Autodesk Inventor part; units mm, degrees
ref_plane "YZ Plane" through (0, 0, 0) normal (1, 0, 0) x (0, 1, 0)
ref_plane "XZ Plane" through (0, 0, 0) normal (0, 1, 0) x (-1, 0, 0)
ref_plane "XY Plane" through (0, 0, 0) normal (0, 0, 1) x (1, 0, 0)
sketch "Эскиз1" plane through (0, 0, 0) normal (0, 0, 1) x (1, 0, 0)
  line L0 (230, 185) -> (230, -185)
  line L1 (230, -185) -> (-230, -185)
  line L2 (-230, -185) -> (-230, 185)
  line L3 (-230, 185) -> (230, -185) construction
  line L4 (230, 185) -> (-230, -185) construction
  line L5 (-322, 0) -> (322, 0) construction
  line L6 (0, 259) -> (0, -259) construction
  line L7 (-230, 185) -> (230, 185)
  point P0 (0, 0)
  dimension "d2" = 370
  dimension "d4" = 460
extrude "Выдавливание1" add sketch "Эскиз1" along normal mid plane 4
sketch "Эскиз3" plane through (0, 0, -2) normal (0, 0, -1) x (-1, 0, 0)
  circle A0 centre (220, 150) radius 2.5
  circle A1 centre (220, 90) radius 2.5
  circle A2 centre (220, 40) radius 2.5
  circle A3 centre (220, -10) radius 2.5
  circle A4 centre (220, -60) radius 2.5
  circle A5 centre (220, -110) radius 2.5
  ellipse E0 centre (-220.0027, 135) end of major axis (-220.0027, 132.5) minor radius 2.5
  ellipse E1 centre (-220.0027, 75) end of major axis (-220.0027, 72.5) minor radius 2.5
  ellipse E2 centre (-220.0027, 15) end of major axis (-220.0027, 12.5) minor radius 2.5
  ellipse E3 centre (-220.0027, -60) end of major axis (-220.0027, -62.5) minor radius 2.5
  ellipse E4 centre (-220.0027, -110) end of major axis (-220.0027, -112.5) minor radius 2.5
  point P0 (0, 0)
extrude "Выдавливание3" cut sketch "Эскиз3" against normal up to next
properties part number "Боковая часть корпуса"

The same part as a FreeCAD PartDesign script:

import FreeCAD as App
import Part
import Sketcher
from FreeCAD import Vector


def add_polygon(sketch, points):
    """Adds a closed chain of lines whose ends are joined by coincident constraints."""
    first, n = sketch.GeometryCount, len(points)
    for a, b in zip(points, points[1:] + points[:1]):
        sketch.addGeometry(Part.LineSegment(App.Vector(*a, 0), App.Vector(*b, 0)), False)
    for i in range(n):
        sketch.addConstraint(Sketcher.Constraint("Coincident", first + i, 2, first + (i + 1) % n, 1))

doc = App.newDocument("Part")
body = doc.addObject("PartDesign::Body", "Body")

# Sketch on XY plane
sketch1 = body.newObject("Sketcher::SketchObject", "Sketch")
sketch1.AttachmentSupport = (doc.getObject("XY_Plane"), [""])
sketch1.MapMode = "FlatFace"
add_polygon(sketch1, [(230, -185), (230, 185), (-230, 185), (-230, -185)])  # lines 0-3
sketch1.addConstraint([
    Sketcher.Constraint("Vertical", 0),
    Sketcher.Constraint("Horizontal", 1),
    Sketcher.Constraint("Vertical", 2),
    Sketcher.Constraint("Horizontal", 3),
    Sketcher.Constraint("Symmetric", 0, 2, 2, 2, -1, 1),
    Sketcher.Constraint("DistanceX", 1, 2, 1, 1, 460.0),
    Sketcher.Constraint("DistanceY", 0, 1, 0, 2, 370.0),
])
pad1 = body.newObject("PartDesign::Pad", "Pad")
pad1.Profile = sketch1
pad1.Length = 4
pad1.Midplane = True

# Sketch on XY plane
sketch2 = body.newObject("Sketcher::SketchObject", "Sketch001")
sketch2.AttachmentSupport = (doc.getObject("XY_Plane"), [""])
sketch2.MapMode = "FlatFace"
sketch2.AttachmentOffset = App.Placement(Vector(0, 0, -2), App.Rotation())
sketch2.addGeometry([
    Part.Circle(Vector(-220, 150, 0), Vector(0, 0, 1), 2.5),  # 0
    Part.Circle(Vector(-220, 90, 0), Vector(0, 0, 1), 2.5),  # 1
    Part.Circle(Vector(-220, 40, 0), Vector(0, 0, 1), 2.5),  # 2
    Part.Circle(Vector(-220, -10, 0), Vector(0, 0, 1), 2.5),  # 3
    Part.Circle(Vector(-220, -60, 0), Vector(0, 0, 1), 2.5),  # 4
    Part.Circle(Vector(-220, -110, 0), Vector(0, 0, 1), 2.5),  # 5
    Part.Ellipse(Vector(220.0027, 132.5, 0), Vector(222.5027, 135, 0), Vector(220.0027, 135, 0)),  # 6
    Part.Ellipse(Vector(220.0027, 72.5, 0), Vector(222.5027, 75, 0), Vector(220.0027, 75, 0)),  # 7
    Part.Ellipse(Vector(220.0027, 12.5, 0), Vector(222.5027, 15, 0), Vector(220.0027, 15, 0)),  # 8
    Part.Ellipse(Vector(220.0027, -62.5, 0), Vector(222.5027, -60, 0), Vector(220.0027, -60, 0)),  # 9
    Part.Ellipse(Vector(220.0027, -112.5, 0), Vector(222.5027, -110, 0), Vector(220.0027, -110, 0)),  # 10
], False)
sketch2.addConstraint([
    Sketcher.Constraint("Block", 6),
    Sketcher.Constraint("Block", 7),
    Sketcher.Constraint("Block", 8),
    Sketcher.Constraint("Block", 9),
    Sketcher.Constraint("Block", 10),
    Sketcher.Constraint("Equal", 0, 1),
    Sketcher.Constraint("Equal", 1, 2),
    Sketcher.Constraint("Equal", 2, 3),
    Sketcher.Constraint("Equal", 3, 4),
    Sketcher.Constraint("Equal", 4, 5),
    Sketcher.Constraint("Vertical", 0, 3, 1, 3),
    Sketcher.Constraint("Vertical", 1, 3, 2, 3),
    Sketcher.Constraint("Vertical", 2, 3, 3, 3),
    Sketcher.Constraint("Vertical", 3, 3, 4, 3),
    Sketcher.Constraint("Vertical", 4, 3, 5, 3),
    Sketcher.Constraint("Diameter", 0, 5.0),
    Sketcher.Constraint("DistanceX", 0, 3, -1, 1, 220.0),
    Sketcher.Constraint("DistanceY", -1, 1, 0, 3, 150.0),
    Sketcher.Constraint("DistanceY", -1, 1, 1, 3, 90.0),
    Sketcher.Constraint("DistanceY", -1, 1, 2, 3, 40.0),
    Sketcher.Constraint("DistanceY", 3, 3, -1, 1, 10.0),
    Sketcher.Constraint("DistanceY", 4, 3, -1, 1, 60.0),
    Sketcher.Constraint("DistanceY", 5, 3, -1, 1, 110.0),
])
pocket1 = body.newObject("PartDesign::Pocket", "Pocket")
pocket1.Profile = sketch2
pocket1.Type = "UpToFirst"
pocket1.Reversed = True

doc.recompute()
